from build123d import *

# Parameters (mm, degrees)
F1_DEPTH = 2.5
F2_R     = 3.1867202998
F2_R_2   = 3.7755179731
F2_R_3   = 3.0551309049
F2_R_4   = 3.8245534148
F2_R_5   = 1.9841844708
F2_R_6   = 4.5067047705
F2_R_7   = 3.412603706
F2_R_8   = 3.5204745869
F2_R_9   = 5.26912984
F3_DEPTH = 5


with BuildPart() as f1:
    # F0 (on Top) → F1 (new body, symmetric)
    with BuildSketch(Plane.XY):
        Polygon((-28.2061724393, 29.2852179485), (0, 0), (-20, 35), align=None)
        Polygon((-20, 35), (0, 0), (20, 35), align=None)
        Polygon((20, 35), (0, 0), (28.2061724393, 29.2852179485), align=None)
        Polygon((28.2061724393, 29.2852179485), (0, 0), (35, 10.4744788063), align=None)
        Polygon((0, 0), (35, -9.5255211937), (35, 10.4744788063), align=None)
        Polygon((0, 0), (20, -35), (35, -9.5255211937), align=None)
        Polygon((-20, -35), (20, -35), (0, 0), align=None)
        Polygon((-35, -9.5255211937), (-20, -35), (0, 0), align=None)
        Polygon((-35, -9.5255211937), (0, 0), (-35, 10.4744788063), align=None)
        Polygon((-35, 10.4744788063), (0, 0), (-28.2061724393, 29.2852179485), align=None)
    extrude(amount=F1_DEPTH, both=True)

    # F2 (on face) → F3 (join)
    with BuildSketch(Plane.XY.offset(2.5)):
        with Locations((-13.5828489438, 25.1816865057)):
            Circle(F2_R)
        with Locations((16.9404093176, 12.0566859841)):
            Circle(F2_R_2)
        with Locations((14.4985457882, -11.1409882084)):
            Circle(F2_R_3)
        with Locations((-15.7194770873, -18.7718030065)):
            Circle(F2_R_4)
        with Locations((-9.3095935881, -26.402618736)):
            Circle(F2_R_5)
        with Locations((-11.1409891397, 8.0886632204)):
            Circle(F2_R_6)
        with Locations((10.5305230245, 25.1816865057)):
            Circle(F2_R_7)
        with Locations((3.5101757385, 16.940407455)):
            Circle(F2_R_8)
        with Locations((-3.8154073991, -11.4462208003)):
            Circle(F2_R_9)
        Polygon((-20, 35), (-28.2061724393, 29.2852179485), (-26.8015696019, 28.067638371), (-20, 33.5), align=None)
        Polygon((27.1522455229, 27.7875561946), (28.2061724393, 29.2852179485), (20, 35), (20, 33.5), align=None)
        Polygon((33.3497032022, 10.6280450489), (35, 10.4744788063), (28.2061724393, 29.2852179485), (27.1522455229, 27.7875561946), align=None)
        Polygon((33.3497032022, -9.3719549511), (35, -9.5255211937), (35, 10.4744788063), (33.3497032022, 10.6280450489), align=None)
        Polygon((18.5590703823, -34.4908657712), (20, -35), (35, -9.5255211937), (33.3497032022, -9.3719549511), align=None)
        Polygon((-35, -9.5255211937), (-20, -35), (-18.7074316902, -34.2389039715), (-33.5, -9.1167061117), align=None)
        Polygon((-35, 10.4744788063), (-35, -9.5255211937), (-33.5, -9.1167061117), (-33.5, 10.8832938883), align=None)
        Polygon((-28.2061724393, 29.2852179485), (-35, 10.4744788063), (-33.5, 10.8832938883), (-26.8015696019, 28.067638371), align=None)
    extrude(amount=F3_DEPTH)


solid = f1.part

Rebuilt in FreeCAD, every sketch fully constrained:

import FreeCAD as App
import Part
import Sketcher


def add_polygon(sketch, points):
    """Adds a closed chain of lines whose ends are joined by coincident constraints."""
    first, n = sketch.GeometryCount, len(points)
    for a, b in zip(points, points[1:] + points[:1]):
        sketch.addGeometry(Part.LineSegment(App.Vector(*a, 0), App.Vector(*b, 0)), False)
    for i in range(n):
        sketch.addConstraint(Sketcher.Constraint("Coincident", first + i, 2, first + (i + 1) % n, 1))

doc = App.newDocument("Part")
body = doc.addObject("PartDesign::Body", "Body")

# Sketch on XY plane
sketch1 = body.newObject("Sketcher::SketchObject", "Sketch")
sketch1.AttachmentSupport = (doc.getObject("XY_Plane"), [""])
sketch1.MapMode = "FlatFace"
add_polygon(sketch1, [(-35, 10.474479), (-35, -9.525521), (-20, -35), (20, -35), (35, -9.525521), (35, 10.474479), (28.206172, 29.285218), (20, 35), (-20, 35), (-28.206172, 29.285218)])  # lines 0-9
sketch1.addConstraint([
    Sketcher.Constraint("Vertical", 0),
    Sketcher.Constraint("Horizontal", 2),
    Sketcher.Constraint("Vertical", 4),
    Sketcher.Constraint("Horizontal", 7),
    Sketcher.Constraint("Symmetric", 1, 2, 6, 2, -1, 1),
    Sketcher.Constraint("Symmetric", 0, 2, 3, 2, -2),
    Sketcher.Constraint("Symmetric", 5, 2, 8, 2, -2),
    Sketcher.Constraint("Horizontal", 4, 2, 9, 2),
    Sketcher.Constraint("Vertical", 2, 2, 6, 2),
    Sketcher.Constraint("Vertical", 1, 2, 7, 2),
    Sketcher.Constraint("DistanceX", 2, 1, 2, 2, 40.0),
    Sketcher.Constraint("DistanceY", 0, 2, 0, 1, 20.0),
    Sketcher.Constraint("Distance", 5, 20.0),
    Sketcher.Constraint("Distance", 6, 10.0),
    Sketcher.Constraint("DistanceX", 0, 2, -1, 1, 35.0),
    Sketcher.Constraint("DistanceY", 1, 2, -1, 1, 35.0),
    Sketcher.Constraint("Distance", 1, 29.56263),
])
pad1 = body.newObject("PartDesign::Pad", "Pad")
pad1.Profile = sketch1
pad1.Length = 5
pad1.Midplane = True

# Sketch on XY plane
sketch2 = body.newObject("Sketcher::SketchObject", "Sketch001")
sketch2.AttachmentSupport = (doc.getObject("XY_Plane"), [""])
sketch2.MapMode = "FlatFace"
sketch2.AttachmentOffset = App.Placement(App.Vector(0, 0, 2.5), App.Rotation())
sketch2.addGeometry(Part.Circle(App.Vector(-13.582849, 25.181687, 0), App.Vector(0, 0, 1), 3.18672), False)  # 0
sketch2.addGeometry(Part.Circle(App.Vector(16.940409, 12.056686, 0), App.Vector(0, 0, 1), 3.775518), False)  # 1
sketch2.addGeometry(Part.Circle(App.Vector(14.498546, -11.140988, 0), App.Vector(0, 0, 1), 3.055131), False)  # 2
sketch2.addGeometry(Part.Circle(App.Vector(-15.719477, -18.771803, 0), App.Vector(0, 0, 1), 3.824553), False)  # 3
sketch2.addGeometry(Part.Circle(App.Vector(-9.309594, -26.402619, 0), App.Vector(0, 0, 1), 1.984184), False)  # 4
sketch2.addGeometry(Part.Circle(App.Vector(-11.140989, 8.088663, 0), App.Vector(0, 0, 1), 4.506705), False)  # 5
sketch2.addGeometry(Part.Circle(App.Vector(10.530523, 25.181687, 0), App.Vector(0, 0, 1), 3.412604), False)  # 6
sketch2.addGeometry(Part.Circle(App.Vector(3.510176, 16.940407, 0), App.Vector(0, 0, 1), 3.520475), False)  # 7
sketch2.addGeometry(Part.Circle(App.Vector(-3.815407, -11.446221, 0), App.Vector(0, 0, 1), 5.26913), False)  # 8
add_polygon(sketch2, [(-20, 35), (-28.206172, 29.285218), (-35, 10.474479), (-35, -9.525521), (-20, -35), (-18.707432, -34.238904), (-33.5, -9.116706), (-33.5, 10.883294), (-26.80157, 28.067638), (-20, 33.5)])  # lines 9-18
add_polygon(sketch2, [(28.206172, 29.285218), (20, 35), (20, 33.5), (27.152246, 27.787556), (33.349703, 10.628045), (33.349703, -9.371955), (18.55907, -34.490866), (20, -35), (35, -9.525521), (35, 10.474479)])  # lines 19-28
sketch2.addConstraint([
    Sketcher.Constraint("Vertical", 11),
    Sketcher.Constraint("Vertical", 15),
    Sketcher.Constraint("Vertical", 18),
    Sketcher.Constraint("Vertical", 20),
    Sketcher.Constraint("Vertical", 23),
    Sketcher.Constraint("Vertical", 27),
    Sketcher.Constraint("Symmetric", 12, 2, 19, 2, -1, 1),
    Sketcher.Constraint("Symmetric", 18, 2, 25, 2, -1, 1),
    Sketcher.Constraint("Symmetric", 18, 2, 19, 2, -2),
    Sketcher.Constraint("Symmetric", 11, 2, 26, 2, -2),
    Sketcher.Constraint("Symmetric", 9, 2, 28, 2, -2),
    Sketcher.Constraint("Perpendicular", 12, 13),
    Sketcher.Constraint("Perpendicular", 13, 14),
    Sketcher.Constraint("Parallel", 24, 26),
    Sketcher.Constraint("Parallel", 22, 28),
    Sketcher.Constraint("Horizontal", 0, 3, 6, 3),
    Sketcher.Constraint("Horizontal", 17, 2, 20, 2),
    Sketcher.Constraint("Horizontal", 10, 2, 27, 2),
    Sketcher.Constraint("Equal", 11, 15),
    Sketcher.Constraint("Equal", 15, 23),
    Sketcher.Constraint("DistanceY", 11, 2, 11, 1, 20.0),
    Sketcher.Constraint("Distance", 9, 10.0),
    Sketcher.Constraint("Distance", 10, 20.0),
    Sketcher.Constraint("DistanceY", 18, 1, 18, 2, 1.5),
    Sketcher.Constraint("DistanceX", 10, 2, -1, 1, 35.0),
    Sketcher.Constraint("DistanceX", 12, 2, -1, 1, 20.0),
    Sketcher.Constraint("DistanceY", 12, 2, -1, 1, 35.0),
    Sketcher.Constraint("Distance", 13, 1.5),
    Sketcher.Constraint("DistanceX", 14, 2, -1, 1, 33.5),
    Sketcher.Constraint("Distance", 24, 29.15),
    Sketcher.Constraint("Diameter", 0, 6.373441),
    Sketcher.Constraint("Diameter", 2, 6.110262),
    Sketcher.Constraint("Diameter", 4, 3.968369),
    Sketcher.Constraint("Diameter", 5, 9.01341),
    Sketcher.Constraint("Diameter", 7, 7.040949),
    Sketcher.Constraint("Diameter", 8, 10.53826),
    Sketcher.Constraint("DistanceX", 3, 3, 6, 3, 26.25),
    Sketcher.Constraint("Diameter", 1, 7.551036),
    Sketcher.Constraint("Diameter", 3, 7.649107),
    Sketcher.Constraint("Diameter", 6, 6.825207),
    Sketcher.Constraint("DistanceY", 1, 3, 0, 3, 13.125001),
    Sketcher.Constraint("DistanceX", 5, 3, 1, 3, 28.081398),
    Sketcher.Constraint("DistanceY", 8, 3, 10, 2, 21.9207),
    Sketcher.Constraint("DistanceY", 13, 2, 3, 3, 15.467101),
    Sketcher.Constraint("Distance", 12, 29.56263),
    Sketcher.Constraint("DistanceX", 0, 3, -1, 1, 13.582849),
    Sketcher.Constraint("DistanceX", -1, 1, 1, 3, 16.940409),
    Sketcher.Constraint("DistanceY", 2, 3, -1, 1, 11.140988),
    Sketcher.Constraint("DistanceY", 4, 3, -1, 1, 26.402619),
    Sketcher.Constraint("DistanceX", 16, 2, -1, 1, 26.80157),
    Sketcher.Constraint("DistanceY", -1, 1, 16, 2, 28.067638),
    Sketcher.Constraint("DistanceX", -1, 1, 24, 2, 18.55907),
    Sketcher.Constraint("DistanceX", 3, 3, 0, 3, 2.136628),
    Sketcher.Constraint("DistanceY", 3, 3, 0, 3, 43.95349),
    Sketcher.Constraint("DistanceX", 4, 3, 2, 3, 23.808139),
    Sketcher.Constraint("DistanceY", 2, 3, 5, 3, 19.229651),
    Sketcher.Constraint("DistanceY", 7, 3, 6, 3, 8.241279),
    Sketcher.Constraint("DistanceX", 7, 3, 2, 3, 10.98837),
    Sketcher.Constraint("DistanceX", 3, 3, 8, 3, 11.90407),
    Sketcher.Constraint("DistanceX", 9, 2, 7, 3, 31.716348),
    Sketcher.Constraint("DistanceY", 6, 3, 21, 2, 2.60587),
    Sketcher.Constraint("DistanceX", 7, 3, 21, 2, 23.64207),
])
pad2 = body.newObject("PartDesign::Pad", "Pad001")
pad2.Profile = sketch2
pad2.Length = 5

doc.recompute()
